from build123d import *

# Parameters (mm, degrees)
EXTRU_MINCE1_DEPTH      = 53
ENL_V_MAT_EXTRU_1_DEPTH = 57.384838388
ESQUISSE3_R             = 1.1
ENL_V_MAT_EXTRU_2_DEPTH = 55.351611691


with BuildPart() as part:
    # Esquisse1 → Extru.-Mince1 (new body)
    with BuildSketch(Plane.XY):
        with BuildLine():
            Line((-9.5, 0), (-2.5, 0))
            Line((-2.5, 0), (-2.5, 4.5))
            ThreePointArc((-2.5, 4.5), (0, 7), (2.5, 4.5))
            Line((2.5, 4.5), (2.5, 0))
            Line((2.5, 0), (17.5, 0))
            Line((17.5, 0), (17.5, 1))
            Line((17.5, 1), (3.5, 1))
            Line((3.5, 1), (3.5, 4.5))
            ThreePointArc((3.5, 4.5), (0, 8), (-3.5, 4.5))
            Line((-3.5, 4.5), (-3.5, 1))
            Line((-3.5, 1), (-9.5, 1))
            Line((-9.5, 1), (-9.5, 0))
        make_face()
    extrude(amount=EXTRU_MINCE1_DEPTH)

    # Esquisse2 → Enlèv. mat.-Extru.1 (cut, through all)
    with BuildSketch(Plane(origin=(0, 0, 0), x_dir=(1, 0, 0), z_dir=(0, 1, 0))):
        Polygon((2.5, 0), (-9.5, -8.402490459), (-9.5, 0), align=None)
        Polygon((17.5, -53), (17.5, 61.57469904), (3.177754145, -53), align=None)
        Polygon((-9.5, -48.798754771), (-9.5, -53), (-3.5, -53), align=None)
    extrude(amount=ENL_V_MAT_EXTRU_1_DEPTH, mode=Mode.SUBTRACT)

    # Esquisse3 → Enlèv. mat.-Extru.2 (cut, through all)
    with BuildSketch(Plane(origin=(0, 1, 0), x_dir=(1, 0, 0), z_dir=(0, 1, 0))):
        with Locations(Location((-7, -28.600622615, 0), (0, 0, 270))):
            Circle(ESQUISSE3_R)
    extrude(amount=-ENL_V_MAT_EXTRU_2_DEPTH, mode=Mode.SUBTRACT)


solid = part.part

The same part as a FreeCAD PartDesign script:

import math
import FreeCAD as App
import Part
import Sketcher
from FreeCAD import Vector
Q = App.Units.Quantity

doc = App.newDocument("Part")
body = doc.addObject("PartDesign::Body", "Body")

# Sketch on XY plane
sketch1 = body.newObject("Sketcher::SketchObject", "Sketch")
sketch1.AttachmentSupport = (doc.getObject("XY_Plane"), [""])
sketch1.MapMode = "FlatFace"
sketch1.addGeometry([
    Part.LineSegment(Vector(-9.5, 0, 0), Vector(-2.5, 0, 0)),  # 0
    Part.LineSegment(Vector(-2.5, 0, 0), Vector(-2.5, 4.5, 0)),  # 1
    Part.ArcOfCircle(Part.Circle(Vector(0, 4.5, 0), Vector(0, 0, 1), 2.5), math.radians(0), math.radians(180)),  # 2
    Part.LineSegment(Vector(2.5, 4.5, 0), Vector(2.5, 0, 0)),  # 3
    Part.LineSegment(Vector(2.5, 0, 0), Vector(17.5, 0, 0)),  # 4
    Part.LineSegment(Vector(17.5, 0, 0), Vector(17.5, 1, 0)),  # 5
    Part.LineSegment(Vector(17.5, 1, 0), Vector(3.5, 1, 0)),  # 6
    Part.LineSegment(Vector(3.5, 1, 0), Vector(3.5, 4.5, 0)),  # 7
    Part.ArcOfCircle(Part.Circle(Vector(0, 4.5, 0), Vector(0, 0, 1), 3.5), math.radians(0), math.radians(180)),  # 8
    Part.LineSegment(Vector(-3.5, 4.5, 0), Vector(-3.5, 1, 0)),  # 9
    Part.LineSegment(Vector(-3.5, 1, 0), Vector(-9.5, 1, 0)),  # 10
    Part.LineSegment(Vector(-9.5, 1, 0), Vector(-9.5, 0, 0)),  # 11
], False)
sketch1.addConstraint([
    Sketcher.Constraint("Coincident", 0, 2, 1, 1),
    Sketcher.Constraint("Tangent", 1, 2, 2, 2),
    Sketcher.Constraint("Tangent", 2, 1, 3, 1),
    Sketcher.Constraint("Coincident", 3, 2, 4, 1),
    Sketcher.Constraint("Coincident", 4, 2, 5, 1),
    Sketcher.Constraint("Coincident", 5, 2, 6, 1),
    Sketcher.Constraint("Coincident", 6, 2, 7, 1),
    Sketcher.Constraint("Tangent", 7, 2, 8, 1),
    Sketcher.Constraint("Tangent", 8, 2, 9, 1),
    Sketcher.Constraint("Coincident", 9, 2, 10, 1),
    Sketcher.Constraint("Coincident", 10, 2, 11, 1),
    Sketcher.Constraint("Coincident", 11, 2, 0, 1),
    Sketcher.Constraint("Horizontal", 0),
    Sketcher.Constraint("Vertical", 1),
    Sketcher.Constraint("Vertical", 3),
    Sketcher.Constraint("Horizontal", 4),
    Sketcher.Constraint("Vertical", 5),
    Sketcher.Constraint("Horizontal", 6),
    Sketcher.Constraint("Vertical", 7),
    Sketcher.Constraint("Vertical", 9),
    Sketcher.Constraint("Horizontal", 10),
    Sketcher.Constraint("Vertical", 11),
    Sketcher.Constraint("Coincident", 8, 3, 2, 3),
    Sketcher.Constraint("Symmetric", 0, 2, 3, 2, -1, 1),
    Sketcher.Constraint("PointOnObject", 0, 2, -1),
    Sketcher.Constraint("Horizontal", 6, 2, 9, 2),
    Sketcher.Constraint("Radius", 2, 2.5),
    Sketcher.Constraint("Radius", 8, 3.5),
    Sketcher.Constraint("DistanceX", 0, 1, 0, 2, 7.0),
    Sketcher.Constraint("DistanceX", 4, 1, 4, 2, 15.0),
    Sketcher.Constraint("DistanceY", 5, 1, 5, 2, 1.0),
    Sketcher.Constraint("DistanceY", 1, 1, 1, 2, 4.5),
])
pad1 = body.newObject("PartDesign::Pad", "Pad")
pad1.Profile = sketch1
pad1.Length = 53

# Sketch on XZ plane
sketch2 = body.newObject("Sketcher::SketchObject", "Sketch001")
sketch2.AttachmentSupport = (doc.getObject("XZ_Plane"), [""])
sketch2.MapMode = "FlatFace"
sketch2.addGeometry([
    Part.LineSegment(Vector(-9.5, 8.4, 0), Vector(2.5, 0, 0)),  # 0
    Part.LineSegment(Vector(2.5, 0, 0), Vector(-9.5, 0, 0)),  # 1
    Part.LineSegment(Vector(-9.5, 0, 0), Vector(-9.5, 8.4, 0)),  # 2
    Part.LineSegment(Vector(17.5, 53, 0), Vector(17.5, -61.6, 0)),  # 3
    Part.LineSegment(Vector(17.5, -61.6, 0), Vector(3.2, 53, 0)),  # 4
    Part.LineSegment(Vector(3.2, 53, 0), Vector(17.5, 53, 0)),  # 5
    Part.LineSegment(Vector(-9.5, 48.8, 0), Vector(-9.5, 53, 0)),  # 6
    Part.LineSegment(Vector(-9.5, 53, 0), Vector(-3.5, 53, 0)),  # 7
    Part.LineSegment(Vector(-3.5, 53, 0), Vector(-9.5, 48.8, 0)),  # 8
], False)
sketch2.addConstraint([
    Sketcher.Constraint("Coincident", 0, 2, 1, 1),
    Sketcher.Constraint("Coincident", 1, 2, 2, 1),
    Sketcher.Constraint("Coincident", 2, 2, 0, 1),
    Sketcher.Constraint("Coincident", 3, 2, 4, 1),
    Sketcher.Constraint("Coincident", 4, 2, 5, 1),
    Sketcher.Constraint("Coincident", 5, 2, 3, 1),
    Sketcher.Constraint("Coincident", 6, 2, 7, 1),
    Sketcher.Constraint("Coincident", 7, 2, 8, 1),
    Sketcher.Constraint("Coincident", 8, 2, 6, 1),
    Sketcher.Constraint("Horizontal", 1),
    Sketcher.Constraint("Vertical", 2),
    Sketcher.Constraint("Vertical", 3),
    Sketcher.Constraint("Horizontal", 5),
    Sketcher.Constraint("Vertical", 6),
    Sketcher.Constraint("Horizontal", 7),
    Sketcher.Constraint("PointOnObject", 0, 2, -1),
    Sketcher.Constraint("Horizontal", 5, 2, 6, 2),
    Sketcher.Constraint("Vertical", 2, 2, 6, 2),
    Sketcher.Constraint("DistanceX", 1, 2, 1, 1, 12.0),
    Sketcher.Constraint("DistanceX", 7, 1, 7, 2, 6.0),
    Sketcher.Constraint("Angle", 0, Q("-35 deg")),
    Sketcher.Constraint("Angle", 8, Q("-145 deg")),
    Sketcher.Constraint("DistanceY", -1, 1, 4, 2, 53.0),
    Sketcher.Constraint("DistanceX", 0, 2, 3, 2, 15.0),
    Sketcher.Constraint("DistanceX", -1, 1, 0, 2, 2.5),
    Sketcher.Constraint("DistanceY", 3, 2, 3, 1, 114.574699),
    Sketcher.Constraint("DistanceX", 5, 1, 5, 2, 14.322246),
])
pocket1 = body.newObject("PartDesign::Pocket", "Pocket")
pocket1.Profile = sketch2
pocket1.Type = "ThroughAll"

# Sketch on XZ plane
sketch3 = body.newObject("Sketcher::SketchObject", "Sketch002")
sketch3.AttachmentSupport = (doc.getObject("XZ_Plane"), [""])
sketch3.MapMode = "FlatFace"
sketch3.AttachmentOffset = App.Placement(Vector(0, 0, -1), App.Rotation())
sketch3.addGeometry(Part.Circle(Vector(-7, 28.6, 0), Vector(0, 0, 1), 1.1), False)
sketch3.addConstraint([
    Sketcher.Constraint("Diameter", 0, 2.2),
    Sketcher.Constraint("DistanceX", 0, 3, -1, 1, 7.0),
    Sketcher.Constraint("DistanceY", -1, 1, 0, 3, 28.600623),
])
pocket2 = body.newObject("PartDesign::Pocket", "Pocket001")
pocket2.Profile = sketch3
pocket2.Type = "ThroughAll"
pocket2.Reversed = True

doc.recompute()
